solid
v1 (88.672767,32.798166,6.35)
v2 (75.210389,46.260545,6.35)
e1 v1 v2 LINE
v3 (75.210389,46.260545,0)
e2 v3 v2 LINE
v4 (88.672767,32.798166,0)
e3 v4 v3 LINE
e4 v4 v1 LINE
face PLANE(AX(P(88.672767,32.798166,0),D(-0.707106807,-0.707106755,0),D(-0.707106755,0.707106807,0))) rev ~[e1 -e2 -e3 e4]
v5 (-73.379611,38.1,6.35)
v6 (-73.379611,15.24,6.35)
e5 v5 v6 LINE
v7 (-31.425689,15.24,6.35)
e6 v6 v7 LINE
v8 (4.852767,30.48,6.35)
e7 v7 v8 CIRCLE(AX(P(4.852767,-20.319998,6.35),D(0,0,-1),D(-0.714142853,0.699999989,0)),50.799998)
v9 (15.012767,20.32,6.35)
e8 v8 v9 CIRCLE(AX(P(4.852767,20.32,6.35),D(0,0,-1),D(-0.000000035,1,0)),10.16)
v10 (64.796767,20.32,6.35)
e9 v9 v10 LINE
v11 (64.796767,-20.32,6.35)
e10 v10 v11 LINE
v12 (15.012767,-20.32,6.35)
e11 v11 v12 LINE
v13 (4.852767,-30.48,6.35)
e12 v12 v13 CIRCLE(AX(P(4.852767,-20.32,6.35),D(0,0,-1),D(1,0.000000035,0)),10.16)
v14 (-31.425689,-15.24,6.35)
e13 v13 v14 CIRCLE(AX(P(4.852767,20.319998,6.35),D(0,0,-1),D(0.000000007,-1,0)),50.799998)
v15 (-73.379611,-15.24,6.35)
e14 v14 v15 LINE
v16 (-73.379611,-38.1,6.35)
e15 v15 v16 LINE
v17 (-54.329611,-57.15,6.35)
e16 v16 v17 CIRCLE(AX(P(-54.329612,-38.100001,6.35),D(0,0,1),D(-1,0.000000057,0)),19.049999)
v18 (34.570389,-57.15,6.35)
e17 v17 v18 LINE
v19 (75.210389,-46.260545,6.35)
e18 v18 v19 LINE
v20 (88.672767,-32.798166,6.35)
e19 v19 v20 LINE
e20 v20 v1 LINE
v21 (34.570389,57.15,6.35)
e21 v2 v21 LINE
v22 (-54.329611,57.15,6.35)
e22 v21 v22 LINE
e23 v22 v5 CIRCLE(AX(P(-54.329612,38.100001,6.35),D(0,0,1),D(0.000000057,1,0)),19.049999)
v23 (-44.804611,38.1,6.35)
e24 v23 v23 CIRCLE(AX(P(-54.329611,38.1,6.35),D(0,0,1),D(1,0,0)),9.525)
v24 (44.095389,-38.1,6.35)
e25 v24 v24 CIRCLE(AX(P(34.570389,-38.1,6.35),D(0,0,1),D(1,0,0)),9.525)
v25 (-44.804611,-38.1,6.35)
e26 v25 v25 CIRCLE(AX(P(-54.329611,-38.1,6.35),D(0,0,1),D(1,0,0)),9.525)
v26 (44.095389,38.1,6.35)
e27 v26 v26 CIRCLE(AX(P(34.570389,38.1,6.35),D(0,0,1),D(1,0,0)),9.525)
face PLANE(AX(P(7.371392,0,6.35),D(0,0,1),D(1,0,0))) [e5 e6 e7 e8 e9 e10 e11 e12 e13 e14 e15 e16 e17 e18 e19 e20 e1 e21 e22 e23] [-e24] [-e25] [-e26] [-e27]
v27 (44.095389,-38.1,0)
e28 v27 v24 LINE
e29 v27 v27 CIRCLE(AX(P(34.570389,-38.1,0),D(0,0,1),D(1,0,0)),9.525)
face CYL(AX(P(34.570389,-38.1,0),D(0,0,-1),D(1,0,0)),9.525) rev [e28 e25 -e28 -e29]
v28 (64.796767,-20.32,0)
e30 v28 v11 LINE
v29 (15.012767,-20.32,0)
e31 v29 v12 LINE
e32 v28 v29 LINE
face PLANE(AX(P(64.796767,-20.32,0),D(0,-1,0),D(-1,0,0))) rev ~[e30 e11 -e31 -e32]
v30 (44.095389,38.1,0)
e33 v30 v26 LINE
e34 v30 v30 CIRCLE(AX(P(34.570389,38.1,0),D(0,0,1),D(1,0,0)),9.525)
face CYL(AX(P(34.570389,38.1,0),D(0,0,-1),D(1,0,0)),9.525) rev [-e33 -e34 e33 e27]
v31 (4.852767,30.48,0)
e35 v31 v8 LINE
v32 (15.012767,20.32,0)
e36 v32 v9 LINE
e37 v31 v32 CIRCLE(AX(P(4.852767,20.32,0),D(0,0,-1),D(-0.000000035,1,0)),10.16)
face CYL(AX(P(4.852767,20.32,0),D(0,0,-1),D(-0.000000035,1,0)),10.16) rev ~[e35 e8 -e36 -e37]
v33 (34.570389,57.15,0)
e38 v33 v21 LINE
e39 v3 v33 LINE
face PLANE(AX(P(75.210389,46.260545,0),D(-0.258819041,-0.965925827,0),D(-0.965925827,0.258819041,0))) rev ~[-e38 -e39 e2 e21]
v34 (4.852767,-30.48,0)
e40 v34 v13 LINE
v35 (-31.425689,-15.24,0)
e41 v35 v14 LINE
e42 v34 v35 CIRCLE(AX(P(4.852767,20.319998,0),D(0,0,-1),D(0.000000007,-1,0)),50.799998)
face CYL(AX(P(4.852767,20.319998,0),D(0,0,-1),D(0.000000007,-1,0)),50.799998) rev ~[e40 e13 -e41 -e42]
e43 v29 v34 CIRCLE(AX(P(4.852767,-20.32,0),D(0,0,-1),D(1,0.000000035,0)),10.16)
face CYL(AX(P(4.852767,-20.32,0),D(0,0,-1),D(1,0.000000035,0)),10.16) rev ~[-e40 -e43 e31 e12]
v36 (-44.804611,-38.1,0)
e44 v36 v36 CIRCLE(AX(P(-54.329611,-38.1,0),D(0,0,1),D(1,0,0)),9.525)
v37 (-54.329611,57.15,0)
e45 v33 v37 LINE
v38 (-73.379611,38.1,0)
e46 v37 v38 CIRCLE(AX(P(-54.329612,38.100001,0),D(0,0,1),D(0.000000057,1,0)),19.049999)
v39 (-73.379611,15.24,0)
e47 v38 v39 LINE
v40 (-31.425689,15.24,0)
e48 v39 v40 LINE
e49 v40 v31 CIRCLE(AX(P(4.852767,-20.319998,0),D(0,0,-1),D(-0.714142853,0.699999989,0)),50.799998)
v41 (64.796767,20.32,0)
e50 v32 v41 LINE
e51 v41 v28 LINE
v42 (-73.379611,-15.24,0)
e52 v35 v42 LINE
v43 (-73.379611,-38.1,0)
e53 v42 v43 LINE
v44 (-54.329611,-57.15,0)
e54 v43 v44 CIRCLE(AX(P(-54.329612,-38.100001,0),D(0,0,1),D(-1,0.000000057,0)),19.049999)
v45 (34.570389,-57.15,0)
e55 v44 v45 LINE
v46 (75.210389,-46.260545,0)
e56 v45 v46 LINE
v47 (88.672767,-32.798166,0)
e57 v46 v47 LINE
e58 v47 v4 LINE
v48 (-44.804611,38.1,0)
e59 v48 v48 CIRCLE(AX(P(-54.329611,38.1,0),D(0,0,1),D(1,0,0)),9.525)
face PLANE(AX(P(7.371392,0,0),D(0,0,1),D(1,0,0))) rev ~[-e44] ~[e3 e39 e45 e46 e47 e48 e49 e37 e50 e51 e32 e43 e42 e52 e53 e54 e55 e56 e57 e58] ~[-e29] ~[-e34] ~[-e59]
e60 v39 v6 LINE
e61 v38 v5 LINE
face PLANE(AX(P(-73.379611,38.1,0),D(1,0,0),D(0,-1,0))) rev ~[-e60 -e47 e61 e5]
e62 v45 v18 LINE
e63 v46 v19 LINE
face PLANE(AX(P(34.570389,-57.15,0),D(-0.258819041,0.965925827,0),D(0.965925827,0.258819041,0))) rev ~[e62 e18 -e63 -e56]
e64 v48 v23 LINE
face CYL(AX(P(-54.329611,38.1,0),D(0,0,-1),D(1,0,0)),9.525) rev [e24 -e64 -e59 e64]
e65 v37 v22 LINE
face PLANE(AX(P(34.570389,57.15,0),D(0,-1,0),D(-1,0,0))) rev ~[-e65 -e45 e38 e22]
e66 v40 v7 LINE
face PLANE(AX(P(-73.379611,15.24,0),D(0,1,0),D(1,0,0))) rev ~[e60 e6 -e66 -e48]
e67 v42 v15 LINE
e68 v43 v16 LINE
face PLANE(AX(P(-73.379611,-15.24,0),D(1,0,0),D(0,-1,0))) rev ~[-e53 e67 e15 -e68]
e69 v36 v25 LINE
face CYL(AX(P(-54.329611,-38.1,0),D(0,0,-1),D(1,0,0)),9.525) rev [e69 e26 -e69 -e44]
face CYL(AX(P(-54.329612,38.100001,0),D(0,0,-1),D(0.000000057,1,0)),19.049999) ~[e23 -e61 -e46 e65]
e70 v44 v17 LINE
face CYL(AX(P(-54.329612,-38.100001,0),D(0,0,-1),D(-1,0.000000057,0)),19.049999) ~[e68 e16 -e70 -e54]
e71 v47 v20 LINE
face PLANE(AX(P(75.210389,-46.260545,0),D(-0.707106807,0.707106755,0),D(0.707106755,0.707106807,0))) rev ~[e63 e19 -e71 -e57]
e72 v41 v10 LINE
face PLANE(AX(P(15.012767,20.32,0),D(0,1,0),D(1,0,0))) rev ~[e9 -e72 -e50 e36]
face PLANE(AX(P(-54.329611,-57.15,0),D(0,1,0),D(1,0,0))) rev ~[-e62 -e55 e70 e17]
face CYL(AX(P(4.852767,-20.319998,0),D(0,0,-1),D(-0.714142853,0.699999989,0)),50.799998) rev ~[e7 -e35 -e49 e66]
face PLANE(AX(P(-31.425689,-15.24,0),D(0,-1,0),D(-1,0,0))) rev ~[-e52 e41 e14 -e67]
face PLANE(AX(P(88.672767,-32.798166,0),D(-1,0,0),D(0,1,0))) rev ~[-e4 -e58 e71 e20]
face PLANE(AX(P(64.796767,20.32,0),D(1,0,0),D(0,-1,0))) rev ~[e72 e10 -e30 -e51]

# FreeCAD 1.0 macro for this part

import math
import FreeCAD as App
import Part
import Sketcher

V = App.Vector
Q = App.Units.Quantity

doc = App.newDocument("Part")
body = doc.addObject("PartDesign::Body", "Body")

# Sketch on XY plane
sketch1 = body.newObject("Sketcher::SketchObject", "Sketch")
sketch1.AttachmentSupport = (doc.getObject("XY_Plane"), [""])
sketch1.MapMode = "FlatFace"
sketch1.addGeometry([
    Part.LineSegment(V(34.570389, 57.15, 0), V(-54.329611, 57.15, 0)),  # 0
    Part.ArcOfCircle(Part.Circle(V(-54.329612, 38.100001, 0), V(0, 0, 1), 19.049999), math.radians(89.999997), math.radians(180.000003)),  # 1
    Part.LineSegment(V(-73.379611, 38.1, 0), V(-73.379611, 15.24, 0)),  # 2
    Part.LineSegment(V(-73.379611, 15.24, 0), V(-31.425689, 15.24, 0)),  # 3
    Part.ArcOfCircle(Part.Circle(V(4.852767, -20.319998, 0), V(0, 0, 1), 50.799998), math.radians(90), math.radians(135.572997)),  # 4
    Part.ArcOfCircle(Part.Circle(V(4.852767, 20.32, 0), V(0, 0, 1), 10.16), math.radians(-0.000002), math.radians(90.000002)),  # 5
    Part.LineSegment(V(15.012767, 20.32, 0), V(64.796767, 20.32, 0)),  # 6
    Part.LineSegment(V(64.796767, 20.32, 0), V(64.796767, -20.32, 0)),  # 7
    Part.LineSegment(V(64.796767, -20.32, 0), V(15.012767, -20.32, 0)),  # 8
    Part.ArcOfCircle(Part.Circle(V(4.852767, -20.32, 0), V(0, 0, 1), 10.16), math.radians(-90.000002), math.radians(0.000002)),  # 9
    Part.ArcOfCircle(Part.Circle(V(4.852767, 20.319998, 0), V(0, 0, 1), 50.799998), math.radians(-135.572997), math.radians(-90)),  # 10
    Part.LineSegment(V(-31.425689, -15.24, 0), V(-73.379611, -15.24, 0)),  # 11
    Part.LineSegment(V(-73.379611, -15.24, 0), V(-73.379611, -38.1, 0)),  # 12
    Part.ArcOfCircle(Part.Circle(V(-54.329612, -38.100001, 0), V(0, 0, 1), 19.049999), math.radians(179.999997), math.radians(270.000003)),  # 13
    Part.LineSegment(V(-54.329611, -57.15, 0), V(34.570389, -57.15, 0)),  # 14
    Part.LineSegment(V(34.570389, -57.15, 0), V(75.210389, -46.260545, 0)),  # 15
    Part.LineSegment(V(75.210389, -46.260545, 0), V(88.672767, -32.798166, 0)),  # 16
    Part.LineSegment(V(88.672767, -32.798166, 0), V(88.672767, 32.798166, 0)),  # 17
    Part.LineSegment(V(88.672767, 32.798166, 0), V(75.210389, 46.260545, 0)),  # 18
    Part.LineSegment(V(75.210389, 46.260545, 0), V(34.570389, 57.15, 0)),  # 19
    Part.Circle(V(-54.329611, -38.1, 0), V(0, 0, 1), 9.525),  # 20
    Part.Circle(V(34.570389, -38.1, 0), V(0, 0, 1), 9.525),  # 21
    Part.Circle(V(-54.329611, 38.1, 0), V(0, 0, 1), 9.525),  # 22
    Part.Circle(V(34.570389, 38.1, 0), V(0, 0, 1), 9.525),  # 23
], False)
sketch1.addConstraint([
    Sketcher.Constraint("Tangent", 0, 2, 1, 1),
    Sketcher.Constraint("Tangent", 1, 2, 2, 1),
    Sketcher.Constraint("Coincident", 2, 2, 3, 1),
    Sketcher.Constraint("Coincident", 3, 2, 4, 2),
    Sketcher.Constraint("Tangent", 4, 1, 5, 2),
    Sketcher.Constraint("Coincident", 5, 1, 6, 1),
    Sketcher.Constraint("Coincident", 6, 2, 7, 1),
    Sketcher.Constraint("Coincident", 7, 2, 8, 1),
    Sketcher.Constraint("Coincident", 8, 2, 9, 2),
    Sketcher.Constraint("Tangent", 9, 1, 10, 2),
    Sketcher.Constraint("Coincident", 10, 1, 11, 1),
    Sketcher.Constraint("Coincident", 11, 2, 12, 1),
    Sketcher.Constraint("Tangent", 12, 2, 13, 1),
    Sketcher.Constraint("Tangent", 13, 2, 14, 1),
    Sketcher.Constraint("Coincident", 14, 2, 15, 1),
    Sketcher.Constraint("Coincident", 15, 2, 16, 1),
    Sketcher.Constraint("Coincident", 16, 2, 17, 1),
    Sketcher.Constraint("Coincident", 17, 2, 18, 1),
    Sketcher.Constraint("Coincident", 18, 2, 19, 1),
    Sketcher.Constraint("Coincident", 19, 2, 0, 1),
    Sketcher.Constraint("Horizontal", 0),
    Sketcher.Constraint("Vertical", 2),
    Sketcher.Constraint("Horizontal", 3),
    Sketcher.Constraint("Horizontal", 6),
    Sketcher.Constraint("Vertical", 7),
    Sketcher.Constraint("Horizontal", 8),
    Sketcher.Constraint("Horizontal", 11),
    Sketcher.Constraint("Vertical", 12),
    Sketcher.Constraint("Horizontal", 14),
    Sketcher.Constraint("Vertical", 17),
    Sketcher.Constraint("Coincident", 9, 3, 4, 3),
    Sketcher.Constraint("Coincident", 10, 3, 5, 3),
    Sketcher.Constraint("Coincident", 20, 3, 13, 3),
    Sketcher.Constraint("Coincident", 22, 3, 1, 3),
    Sketcher.Constraint("Equal", 5, 9),
    Sketcher.Constraint("Equal", 1, 13),
    Sketcher.Constraint("Equal", 20, 21),
    Sketcher.Constraint("Equal", 21, 22),
    Sketcher.Constraint("Equal", 22, 23),
    Sketcher.Constraint("Symmetric", 4, 3, 5, 3, -1),
    Sketcher.Constraint("Symmetric", 1, 3, 13, 3, -1),
    Sketcher.Constraint("Symmetric", 21, 3, 23, 3, -1),
    Sketcher.Constraint("Symmetric", 15, 2, 18, 2, -1),
    Sketcher.Constraint("Perpendicular", 16, 18),
    Sketcher.Constraint("Horizontal", 20, 3, 21, 3),
    Sketcher.Constraint("Horizontal", 10, 3, 5, 1),
    Sketcher.Constraint("Horizontal", 9, 3, 7, 2),
    Sketcher.Constraint("Vertical", 3, 2, 10, 1),
    Sketcher.Constraint("Vertical", 23, 3, 14, 2),
    Sketcher.Constraint("Vertical", 14, 2, 19, 2),
    Sketcher.Constraint("Equal", 16, 18),
    Sketcher.Constraint("Radius", 4, Q("1.9999999 in")),
    Sketcher.Constraint("Radius", 5, Q("0.4 in")),
    Sketcher.Constraint("Diameter", 20, Q("0.75 in")),
    Sketcher.Constraint("Radius", 1, Q("0.75 in")),
    Sketcher.Constraint("DistanceX", 0, 2, 0, 1, Q("3.5 in")),
    Sketcher.Constraint("DistanceY", 2, 2, 2, 1, Q("0.9 in")),
    Sketcher.Constraint("Angle", 15, Q("15 deg")),
    Sketcher.Constraint("DistanceY", 13, 3, 1, 3, Q("3.0000001 in")),
    Sketcher.Constraint("DistanceX", 6, 1, 6, 2, Q("1.96 in")),
    Sketcher.Constraint("DistanceX", 21, 3, 15, 2, Q("1.6 in")),
    Sketcher.Constraint("DistanceX", 5, 1, 17, 2, Q("2.9 in")),
    Sketcher.Constraint("Distance", 16, 19.038678),
    Sketcher.Constraint("DistanceX", 20, 3, -1, 1, 54.329611),
])
pad1 = body.newObject("PartDesign::Pad", "Pad")
pad1.Profile = sketch1
pad1.Length = Q("0.25 in")

doc.recompute()
